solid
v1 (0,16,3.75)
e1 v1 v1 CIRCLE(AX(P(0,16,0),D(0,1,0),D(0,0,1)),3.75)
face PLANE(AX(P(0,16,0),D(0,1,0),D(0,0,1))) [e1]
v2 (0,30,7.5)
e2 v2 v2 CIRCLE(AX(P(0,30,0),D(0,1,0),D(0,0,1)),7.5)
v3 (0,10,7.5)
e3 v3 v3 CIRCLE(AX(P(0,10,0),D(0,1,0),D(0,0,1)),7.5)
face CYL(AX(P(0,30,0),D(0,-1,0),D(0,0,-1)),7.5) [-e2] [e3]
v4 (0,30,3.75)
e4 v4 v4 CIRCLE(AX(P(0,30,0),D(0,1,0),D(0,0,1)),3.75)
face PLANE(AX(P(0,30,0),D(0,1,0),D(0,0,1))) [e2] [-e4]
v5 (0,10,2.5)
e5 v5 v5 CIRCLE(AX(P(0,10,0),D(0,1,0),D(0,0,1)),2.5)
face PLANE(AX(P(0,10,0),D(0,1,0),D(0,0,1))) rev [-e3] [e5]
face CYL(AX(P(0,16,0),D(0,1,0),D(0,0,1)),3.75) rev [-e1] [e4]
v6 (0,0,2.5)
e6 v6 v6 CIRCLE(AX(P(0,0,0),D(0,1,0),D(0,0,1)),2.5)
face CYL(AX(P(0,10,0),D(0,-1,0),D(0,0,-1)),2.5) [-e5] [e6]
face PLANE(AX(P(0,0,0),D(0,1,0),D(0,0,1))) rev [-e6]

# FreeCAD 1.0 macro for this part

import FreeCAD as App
import Part
import Sketcher

V = App.Vector
Q = App.Units.Quantity

doc = App.newDocument("Part")
params = doc.addObject("Spreadsheet::Sheet", "Params")
for row, (alias, value) in enumerate([
    ("sketch1_diameter", "5 mm"),
    ("pad1_length", "10 mm"),
    ("sketch2_diameter", "15 mm"),
    ("pad2_length", "20 mm"),
    ("sketch3_diameter", "7.5 mm"),
    ("pocket1_length", "14 mm"),
], start=1):
    params.set(f"A{row}", alias)
    params.set(f"B{row}", "=" + value)
    params.setAlias(f"B{row}", alias)

body = doc.addObject("PartDesign::Body", "Body")

# Sketch on XZ plane
sketch1 = body.newObject("Sketcher::SketchObject", "Sketch")
sketch1.AttachmentSupport = (doc.getObject("XZ_Plane"), [""])
sketch1.MapMode = "FlatFace"
sketch1.addGeometry(Part.Circle(V(0, 0, 0), V(0, 0, 1), 2.5), False)
sketch1.addConstraint(Sketcher.Constraint("Coincident", 0, 3, -1, 1))
sketch1.addConstraint(Sketcher.Constraint("Diameter", 0, Q("5 mm")))
sketch1.setExpression("Constraints[1]", "Params.sketch1_diameter")
pad1 = body.newObject("PartDesign::Pad", "Pad")
pad1.Profile = sketch1
pad1.setExpression("Length", "Params.pad1_length")
pad1.Reversed = True

# Sketch on XZ plane
sketch2 = body.newObject("Sketcher::SketchObject", "Sketch001")
sketch2.AttachmentSupport = (doc.getObject("XZ_Plane"), [""])
sketch2.MapMode = "FlatFace"
sketch2.AttachmentOffset = App.Placement(V(0, 0, -10), App.Rotation())
sketch2.addGeometry(Part.Circle(V(0, 0, 0), V(0, 0, 1), 8), False)
sketch2.addConstraint(Sketcher.Constraint("Coincident", 0, 3, -1, 1))
sketch2.addConstraint(Sketcher.Constraint("Diameter", 0, Q("15 mm")))
sketch2.setExpression("Constraints[1]", "Params.sketch2_diameter")
pad2 = body.newObject("PartDesign::Pad", "Pad001")
pad2.Profile = sketch2
pad2.setExpression("Length", "Params.pad2_length")
pad2.Reversed = True

# Sketch on XZ plane
sketch3 = body.newObject("Sketcher::SketchObject", "Sketch002")
sketch3.AttachmentSupport = (doc.getObject("XZ_Plane"), [""])
sketch3.MapMode = "FlatFace"
sketch3.AttachmentOffset = App.Placement(V(0, 0, -30), App.Rotation())
sketch3.addGeometry(Part.Circle(V(0, 0, 0), V(0, 0, 1), 3.8), False)
sketch3.addConstraint(Sketcher.Constraint("Coincident", 0, 3, -1, 1))
sketch3.addConstraint(Sketcher.Constraint("Diameter", 0, Q("7.5 mm")))
sketch3.setExpression("Constraints[1]", "Params.sketch3_diameter")
pocket1 = body.newObject("PartDesign::Pocket", "Pocket")
pocket1.Profile = sketch3
pocket1.setExpression("Length", "Params.pocket1_length")
pocket1.Reversed = True

doc.recompute()
